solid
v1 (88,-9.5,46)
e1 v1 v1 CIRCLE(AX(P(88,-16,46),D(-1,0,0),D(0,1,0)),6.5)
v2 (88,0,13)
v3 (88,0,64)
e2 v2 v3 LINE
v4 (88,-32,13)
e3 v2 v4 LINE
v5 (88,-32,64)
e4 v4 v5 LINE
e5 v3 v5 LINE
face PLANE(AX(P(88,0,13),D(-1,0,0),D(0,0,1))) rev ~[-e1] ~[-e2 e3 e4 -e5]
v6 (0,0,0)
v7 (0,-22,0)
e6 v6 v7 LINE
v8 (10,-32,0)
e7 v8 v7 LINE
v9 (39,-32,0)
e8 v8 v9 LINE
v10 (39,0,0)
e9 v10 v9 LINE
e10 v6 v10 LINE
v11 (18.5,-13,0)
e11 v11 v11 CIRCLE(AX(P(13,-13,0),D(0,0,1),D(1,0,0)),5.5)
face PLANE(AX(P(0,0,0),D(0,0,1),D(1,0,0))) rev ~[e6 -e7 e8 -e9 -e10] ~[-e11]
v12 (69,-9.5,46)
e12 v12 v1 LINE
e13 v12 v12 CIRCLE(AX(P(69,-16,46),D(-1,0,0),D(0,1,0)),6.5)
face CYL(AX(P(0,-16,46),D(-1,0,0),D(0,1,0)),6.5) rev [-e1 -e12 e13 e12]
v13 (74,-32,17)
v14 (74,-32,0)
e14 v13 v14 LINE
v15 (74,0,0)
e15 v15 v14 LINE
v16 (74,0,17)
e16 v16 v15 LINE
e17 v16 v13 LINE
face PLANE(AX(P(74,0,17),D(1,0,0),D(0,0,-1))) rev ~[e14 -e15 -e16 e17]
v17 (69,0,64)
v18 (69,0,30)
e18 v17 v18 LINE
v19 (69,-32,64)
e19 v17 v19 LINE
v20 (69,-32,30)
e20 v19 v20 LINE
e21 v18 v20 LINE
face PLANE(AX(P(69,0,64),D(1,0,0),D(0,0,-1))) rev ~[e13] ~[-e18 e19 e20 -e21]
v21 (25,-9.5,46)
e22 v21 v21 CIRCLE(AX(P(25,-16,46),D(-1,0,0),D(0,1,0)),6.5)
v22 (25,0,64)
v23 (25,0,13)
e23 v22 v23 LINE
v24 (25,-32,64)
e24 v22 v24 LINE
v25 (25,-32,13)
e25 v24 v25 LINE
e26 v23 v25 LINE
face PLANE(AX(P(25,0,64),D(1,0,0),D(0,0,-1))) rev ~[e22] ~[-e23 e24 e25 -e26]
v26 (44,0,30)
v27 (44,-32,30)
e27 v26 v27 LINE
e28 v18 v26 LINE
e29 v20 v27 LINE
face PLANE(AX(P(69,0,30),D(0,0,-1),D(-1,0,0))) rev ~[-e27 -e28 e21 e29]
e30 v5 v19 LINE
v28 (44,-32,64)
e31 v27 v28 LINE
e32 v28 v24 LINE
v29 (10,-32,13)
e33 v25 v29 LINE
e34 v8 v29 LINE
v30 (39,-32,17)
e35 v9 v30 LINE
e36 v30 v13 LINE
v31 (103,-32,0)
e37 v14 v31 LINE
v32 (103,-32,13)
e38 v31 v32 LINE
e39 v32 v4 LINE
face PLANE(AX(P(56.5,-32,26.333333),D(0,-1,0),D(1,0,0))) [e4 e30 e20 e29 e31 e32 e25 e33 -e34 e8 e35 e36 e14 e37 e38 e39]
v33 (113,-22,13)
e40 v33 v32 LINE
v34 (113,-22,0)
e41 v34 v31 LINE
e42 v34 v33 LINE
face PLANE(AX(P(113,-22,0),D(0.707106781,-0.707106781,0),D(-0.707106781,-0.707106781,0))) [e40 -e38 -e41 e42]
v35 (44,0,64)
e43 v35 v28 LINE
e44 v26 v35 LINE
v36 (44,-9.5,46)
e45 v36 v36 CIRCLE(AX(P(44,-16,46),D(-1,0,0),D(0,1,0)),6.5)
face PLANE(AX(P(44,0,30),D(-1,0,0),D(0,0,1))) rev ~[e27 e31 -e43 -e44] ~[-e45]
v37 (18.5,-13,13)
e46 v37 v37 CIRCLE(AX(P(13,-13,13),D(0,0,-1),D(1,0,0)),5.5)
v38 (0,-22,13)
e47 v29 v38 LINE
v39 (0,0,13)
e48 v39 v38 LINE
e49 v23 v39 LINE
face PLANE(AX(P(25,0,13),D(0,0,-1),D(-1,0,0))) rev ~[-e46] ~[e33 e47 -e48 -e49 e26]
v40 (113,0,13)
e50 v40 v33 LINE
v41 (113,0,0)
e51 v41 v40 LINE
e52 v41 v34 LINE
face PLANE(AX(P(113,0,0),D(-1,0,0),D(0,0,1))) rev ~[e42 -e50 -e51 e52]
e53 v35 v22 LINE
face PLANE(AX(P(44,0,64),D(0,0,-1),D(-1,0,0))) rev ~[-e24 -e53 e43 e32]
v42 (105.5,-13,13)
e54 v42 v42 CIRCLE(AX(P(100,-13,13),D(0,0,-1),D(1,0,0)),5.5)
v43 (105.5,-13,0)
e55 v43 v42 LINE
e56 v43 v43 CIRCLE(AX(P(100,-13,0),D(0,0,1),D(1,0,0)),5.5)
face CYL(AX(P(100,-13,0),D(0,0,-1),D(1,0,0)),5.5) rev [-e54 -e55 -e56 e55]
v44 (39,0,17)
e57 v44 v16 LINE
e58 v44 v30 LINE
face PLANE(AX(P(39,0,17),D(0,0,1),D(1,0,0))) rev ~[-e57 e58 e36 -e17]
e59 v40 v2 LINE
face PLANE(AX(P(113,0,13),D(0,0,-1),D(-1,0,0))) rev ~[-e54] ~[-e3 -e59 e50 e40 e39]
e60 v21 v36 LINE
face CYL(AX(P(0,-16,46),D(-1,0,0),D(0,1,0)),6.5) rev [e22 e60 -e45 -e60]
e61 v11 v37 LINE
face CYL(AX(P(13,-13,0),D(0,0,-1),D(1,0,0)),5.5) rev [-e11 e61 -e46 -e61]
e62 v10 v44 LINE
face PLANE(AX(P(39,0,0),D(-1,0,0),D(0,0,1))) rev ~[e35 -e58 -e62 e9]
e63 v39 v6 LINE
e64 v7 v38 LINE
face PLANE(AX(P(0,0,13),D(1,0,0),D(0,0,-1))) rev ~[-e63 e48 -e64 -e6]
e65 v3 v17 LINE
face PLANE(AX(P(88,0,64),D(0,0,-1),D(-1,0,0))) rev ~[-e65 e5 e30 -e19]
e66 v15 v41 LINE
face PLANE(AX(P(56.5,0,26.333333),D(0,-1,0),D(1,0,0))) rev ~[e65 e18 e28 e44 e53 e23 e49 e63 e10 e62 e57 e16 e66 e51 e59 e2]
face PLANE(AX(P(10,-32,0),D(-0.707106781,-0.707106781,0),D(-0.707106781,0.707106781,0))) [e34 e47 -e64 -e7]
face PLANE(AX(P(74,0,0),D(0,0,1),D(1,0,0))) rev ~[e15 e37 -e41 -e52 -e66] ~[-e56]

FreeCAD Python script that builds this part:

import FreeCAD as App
import Part
import Sketcher
from FreeCAD import Vector
Q = App.Units.Quantity

doc = App.newDocument("Part")
body = doc.addObject("PartDesign::Body", "Body")

# Sketch on XZ plane
sketch1 = body.newObject("Sketcher::SketchObject", "Sketch")
sketch1.AttachmentSupport = (doc.getObject("XZ_Plane"), [""])
sketch1.MapMode = "FlatFace"
sketch1.addGeometry(Part.LineSegment(Vector(0, 13, 0), Vector(0, 0, 0)), False)
sketch1.addGeometry(Part.LineSegment(Vector(0, 0, 0), Vector(39, 0, 0)), False)
sketch1.addGeometry(Part.LineSegment(Vector(39, 0, 0), Vector(39, 17, 0)), False)
sketch1.addGeometry(Part.LineSegment(Vector(39, 17, 0), Vector(74, 17, 0)), False)
sketch1.addGeometry(Part.LineSegment(Vector(74, 17, 0), Vector(74, 0, 0)), False)
sketch1.addGeometry(Part.LineSegment(Vector(74, 0, 0), Vector(113, 0, 0)), False)
sketch1.addGeometry(Part.LineSegment(Vector(113, 0, 0), Vector(113, 13, 0)), False)
sketch1.addGeometry(Part.LineSegment(Vector(113, 13, 0), Vector(88, 13, 0)), False)
sketch1.addGeometry(Part.LineSegment(Vector(88, 13, 0), Vector(88, 64, 0)), False)
sketch1.addGeometry(Part.LineSegment(Vector(88, 64, 0), Vector(69, 64, 0)), False)
sketch1.addGeometry(Part.LineSegment(Vector(69, 64, 0), Vector(69, 30, 0)), False)
sketch1.addGeometry(Part.LineSegment(Vector(69, 30, 0), Vector(44, 30, 0)), False)
sketch1.addGeometry(Part.LineSegment(Vector(44, 30, 0), Vector(44, 64, 0)), False)
sketch1.addGeometry(Part.LineSegment(Vector(44, 64, 0), Vector(25, 64, 0)), False)
sketch1.addGeometry(Part.LineSegment(Vector(25, 64, 0), Vector(25, 13, 0)), False)
sketch1.addGeometry(Part.LineSegment(Vector(25, 13, 0), Vector(0, 13, 0)), False)
sketch1.addConstraint(Sketcher.Constraint("Coincident", 0, 2, 1, 1))
sketch1.addConstraint(Sketcher.Constraint("Coincident", 1, 2, 2, 1))
sketch1.addConstraint(Sketcher.Constraint("Coincident", 2, 2, 3, 1))
sketch1.addConstraint(Sketcher.Constraint("Coincident", 3, 2, 4, 1))
sketch1.addConstraint(Sketcher.Constraint("Coincident", 4, 2, 5, 1))
sketch1.addConstraint(Sketcher.Constraint("Coincident", 5, 2, 6, 1))
sketch1.addConstraint(Sketcher.Constraint("Coincident", 6, 2, 7, 1))
sketch1.addConstraint(Sketcher.Constraint("Coincident", 7, 2, 8, 1))
sketch1.addConstraint(Sketcher.Constraint("Coincident", 8, 2, 9, 1))
sketch1.addConstraint(Sketcher.Constraint("Coincident", 9, 2, 10, 1))
sketch1.addConstraint(Sketcher.Constraint("Coincident", 10, 2, 11, 1))
sketch1.addConstraint(Sketcher.Constraint("Coincident", 11, 2, 12, 1))
sketch1.addConstraint(Sketcher.Constraint("Coincident", 12, 2, 13, 1))
sketch1.addConstraint(Sketcher.Constraint("Coincident", 13, 2, 14, 1))
sketch1.addConstraint(Sketcher.Constraint("Coincident", 14, 2, 15, 1))
sketch1.addConstraint(Sketcher.Constraint("Coincident", 15, 2, 0, 1))
sketch1.addConstraint(Sketcher.Constraint("Vertical", 0))
sketch1.addConstraint(Sketcher.Constraint("Horizontal", 1))
sketch1.addConstraint(Sketcher.Constraint("Vertical", 2))
sketch1.addConstraint(Sketcher.Constraint("Horizontal", 3))
sketch1.addConstraint(Sketcher.Constraint("Vertical", 4))
sketch1.addConstraint(Sketcher.Constraint("Horizontal", 5))
sketch1.addConstraint(Sketcher.Constraint("Vertical", 6))
sketch1.addConstraint(Sketcher.Constraint("Horizontal", 7))
sketch1.addConstraint(Sketcher.Constraint("Vertical", 8))
sketch1.addConstraint(Sketcher.Constraint("Horizontal", 9))
sketch1.addConstraint(Sketcher.Constraint("Vertical", 10))
sketch1.addConstraint(Sketcher.Constraint("Horizontal", 11))
sketch1.addConstraint(Sketcher.Constraint("Vertical", 12))
sketch1.addConstraint(Sketcher.Constraint("Horizontal", 13))
sketch1.addConstraint(Sketcher.Constraint("Vertical", 14))
sketch1.addConstraint(Sketcher.Constraint("Horizontal", 15))
sketch1.addConstraint(Sketcher.Constraint("Coincident", 0, 2, -1, 1))
sketch1.addConstraint(Sketcher.Constraint("PointOnObject", 4, 2, -1))
sketch1.addConstraint(Sketcher.Constraint("Horizontal", 9, 2, 12, 2))
sketch1.addConstraint(Sketcher.Constraint("Horizontal", 7, 2, 14, 2))
sketch1.addConstraint(Sketcher.Constraint("Equal", 1, 5))
sketch1.addConstraint(Sketcher.Constraint("Equal", 7, 11))
sketch1.addConstraint(Sketcher.Constraint("Equal", 9, 13))
sketch1.addConstraint(Sketcher.Constraint("Equal", 11, 15))
sketch1.addConstraint(Sketcher.Constraint("DistanceX", 1, 1, 1, 2, Q("39 mm")))
sketch1.addConstraint(Sketcher.Constraint("DistanceX", 3, 1, 3, 2, Q("35 mm")))
sketch1.addConstraint(Sketcher.Constraint("DistanceX", 7, 2, 7, 1, Q("25 mm")))
sketch1.addConstraint(Sketcher.Constraint("DistanceY", 0, 2, 0, 1, Q("13 mm")))
sketch1.addConstraint(Sketcher.Constraint("DistanceY", 2, 1, 2, 2, Q("17 mm")))
sketch1.addConstraint(Sketcher.Constraint("DistanceY", 8, 1, 8, 2, Q("51 mm")))
sketch1.addConstraint(Sketcher.Constraint("DistanceY", 10, 2, 10, 1, Q("34 mm")))
pad1 = body.newObject("PartDesign::Pad", "Pad")
pad1.Profile = sketch1
pad1.Length = 32

# Sketch on YZ plane
sketch2 = body.newObject("Sketcher::SketchObject", "Sketch001")
sketch2.AttachmentSupport = (doc.getObject("YZ_Plane"), [""])
sketch2.MapMode = "FlatFace"
sketch2.addGeometry(Part.Circle(Vector(-16, 46, 0), Vector(0, 0, 1), 6), False)
sketch2.addConstraint(Sketcher.Constraint("Diameter", 0, Q("13 mm")))
sketch2.addConstraint(Sketcher.Constraint("DistanceX", 0, 3, -1, 1, Q("16 mm")))
sketch2.addConstraint(Sketcher.Constraint("DistanceY", -1, 1, 0, 3, Q("46 mm")))
pocket1 = body.newObject("PartDesign::Pocket", "Pocket")
pocket1.Profile = sketch2
pocket1.Type = "ThroughAll"
pocket1.Reversed = True

# Sketch on XY plane
sketch3 = body.newObject("Sketcher::SketchObject", "Sketch002")
sketch3.AttachmentSupport = (doc.getObject("XY_Plane"), [""])
sketch3.MapMode = "FlatFace"
sketch3.addGeometry(Part.LineSegment(Vector(10, -32, 0), Vector(0, -22, 0)), False)
sketch3.addGeometry(Part.LineSegment(Vector(0, -22, 0), Vector(0, -32, 0)), False)
sketch3.addGeometry(Part.LineSegment(Vector(0, -32, 0), Vector(10, -32, 0)), False)
sketch3.addConstraint(Sketcher.Constraint("Coincident", 0, 2, 1, 1))
sketch3.addConstraint(Sketcher.Constraint("Coincident", 1, 2, 2, 1))
sketch3.addConstraint(Sketcher.Constraint("Coincident", 2, 2, 0, 1))
sketch3.addConstraint(Sketcher.Constraint("Vertical", 1))
sketch3.addConstraint(Sketcher.Constraint("Horizontal", 2))
sketch3.addConstraint(Sketcher.Constraint("PointOnObject", 0, 2, -2))
sketch3.addConstraint(Sketcher.Constraint("Equal", 2, 1))
sketch3.addConstraint(Sketcher.Constraint("DistanceX", 2, 1, 2, 2, Q("10 mm")))
sketch3.addConstraint(Sketcher.Constraint("DistanceY", 0, 2, -1, 1, Q("22 mm")))
pocket2 = body.newObject("PartDesign::Pocket", "Pocket001")
pocket2.Profile = sketch3
pocket2.Type = "ThroughAll"
pocket2.Reversed = True

# Sketch on XY plane
sketch4 = body.newObject("Sketcher::SketchObject", "Sketch003")
sketch4.AttachmentSupport = (doc.getObject("XY_Plane"), [""])
sketch4.MapMode = "FlatFace"
sketch4.addGeometry(Part.LineSegment(Vector(113, -32, 0), Vector(113, -22, 0)), False)
sketch4.addGeometry(Part.LineSegment(Vector(113, -22, 0), Vector(103, -32, 0)), False)
sketch4.addGeometry(Part.LineSegment(Vector(103, -32, 0), Vector(113, -32, 0)), False)
sketch4.addConstraint(Sketcher.Constraint("Coincident", 0, 2, 1, 1))
sketch4.addConstraint(Sketcher.Constraint("Coincident", 1, 2, 2, 1))
sketch4.addConstraint(Sketcher.Constraint("Coincident", 2, 2, 0, 1))
sketch4.addConstraint(Sketcher.Constraint("Vertical", 0))
sketch4.addConstraint(Sketcher.Constraint("Horizontal", 2))
sketch4.addConstraint(Sketcher.Constraint("Equal", 2, 0))
sketch4.addConstraint(Sketcher.Constraint("DistanceX", 2, 1, 2, 2, Q("10 mm")))
sketch4.addConstraint(Sketcher.Constraint("DistanceX", -1, 1, 0, 2, Q("113 mm")))
sketch4.addConstraint(Sketcher.Constraint("DistanceY", 0, 2, -1, 1, Q("22 mm")))
pocket3 = body.newObject("PartDesign::Pocket", "Pocket002")
pocket3.Profile = sketch4
pocket3.Type = "ThroughAll"
pocket3.Reversed = True

# Sketch on XY plane
sketch5 = body.newObject("Sketcher::SketchObject", "Sketch004")
sketch5.AttachmentSupport = (doc.getObject("XY_Plane"), [""])
sketch5.MapMode = "FlatFace"
sketch5.addGeometry(Part.Circle(Vector(13, -13, 0), Vector(0, 0, 1), 6), False)
sketch5.addConstraint(Sketcher.Constraint("Diameter", 0, Q("11 mm")))
sketch5.addConstraint(Sketcher.Constraint("DistanceX", -1, 1, 0, 3, Q("13 mm")))
sketch5.addConstraint(Sketcher.Constraint("DistanceY", 0, 3, -1, 1, Q("13 mm")))
pocket4 = body.newObject("PartDesign::Pocket", "Pocket003")
pocket4.Profile = sketch5
pocket4.Type = "ThroughAll"
pocket4.Reversed = True

# Sketch on XY plane
sketch6 = body.newObject("Sketcher::SketchObject", "Sketch005")
sketch6.AttachmentSupport = (doc.getObject("XY_Plane"), [""])
sketch6.MapMode = "FlatFace"
sketch6.addGeometry(Part.Circle(Vector(100, -13, 0), Vector(0, 0, 1), 6), False)
sketch6.addConstraint(Sketcher.Constraint("Diameter", 0, Q("11 mm")))
sketch6.addConstraint(Sketcher.Constraint("DistanceX", -1, 1, 0, 3, Q("100 mm")))
sketch6.addConstraint(Sketcher.Constraint("DistanceY", 0, 3, -1, 1, Q("13 mm")))
pocket5 = body.newObject("PartDesign::Pocket", "Pocket004")
pocket5.Profile = sketch6
pocket5.Type = "ThroughAll"
pocket5.Reversed = True

doc.recompute()
